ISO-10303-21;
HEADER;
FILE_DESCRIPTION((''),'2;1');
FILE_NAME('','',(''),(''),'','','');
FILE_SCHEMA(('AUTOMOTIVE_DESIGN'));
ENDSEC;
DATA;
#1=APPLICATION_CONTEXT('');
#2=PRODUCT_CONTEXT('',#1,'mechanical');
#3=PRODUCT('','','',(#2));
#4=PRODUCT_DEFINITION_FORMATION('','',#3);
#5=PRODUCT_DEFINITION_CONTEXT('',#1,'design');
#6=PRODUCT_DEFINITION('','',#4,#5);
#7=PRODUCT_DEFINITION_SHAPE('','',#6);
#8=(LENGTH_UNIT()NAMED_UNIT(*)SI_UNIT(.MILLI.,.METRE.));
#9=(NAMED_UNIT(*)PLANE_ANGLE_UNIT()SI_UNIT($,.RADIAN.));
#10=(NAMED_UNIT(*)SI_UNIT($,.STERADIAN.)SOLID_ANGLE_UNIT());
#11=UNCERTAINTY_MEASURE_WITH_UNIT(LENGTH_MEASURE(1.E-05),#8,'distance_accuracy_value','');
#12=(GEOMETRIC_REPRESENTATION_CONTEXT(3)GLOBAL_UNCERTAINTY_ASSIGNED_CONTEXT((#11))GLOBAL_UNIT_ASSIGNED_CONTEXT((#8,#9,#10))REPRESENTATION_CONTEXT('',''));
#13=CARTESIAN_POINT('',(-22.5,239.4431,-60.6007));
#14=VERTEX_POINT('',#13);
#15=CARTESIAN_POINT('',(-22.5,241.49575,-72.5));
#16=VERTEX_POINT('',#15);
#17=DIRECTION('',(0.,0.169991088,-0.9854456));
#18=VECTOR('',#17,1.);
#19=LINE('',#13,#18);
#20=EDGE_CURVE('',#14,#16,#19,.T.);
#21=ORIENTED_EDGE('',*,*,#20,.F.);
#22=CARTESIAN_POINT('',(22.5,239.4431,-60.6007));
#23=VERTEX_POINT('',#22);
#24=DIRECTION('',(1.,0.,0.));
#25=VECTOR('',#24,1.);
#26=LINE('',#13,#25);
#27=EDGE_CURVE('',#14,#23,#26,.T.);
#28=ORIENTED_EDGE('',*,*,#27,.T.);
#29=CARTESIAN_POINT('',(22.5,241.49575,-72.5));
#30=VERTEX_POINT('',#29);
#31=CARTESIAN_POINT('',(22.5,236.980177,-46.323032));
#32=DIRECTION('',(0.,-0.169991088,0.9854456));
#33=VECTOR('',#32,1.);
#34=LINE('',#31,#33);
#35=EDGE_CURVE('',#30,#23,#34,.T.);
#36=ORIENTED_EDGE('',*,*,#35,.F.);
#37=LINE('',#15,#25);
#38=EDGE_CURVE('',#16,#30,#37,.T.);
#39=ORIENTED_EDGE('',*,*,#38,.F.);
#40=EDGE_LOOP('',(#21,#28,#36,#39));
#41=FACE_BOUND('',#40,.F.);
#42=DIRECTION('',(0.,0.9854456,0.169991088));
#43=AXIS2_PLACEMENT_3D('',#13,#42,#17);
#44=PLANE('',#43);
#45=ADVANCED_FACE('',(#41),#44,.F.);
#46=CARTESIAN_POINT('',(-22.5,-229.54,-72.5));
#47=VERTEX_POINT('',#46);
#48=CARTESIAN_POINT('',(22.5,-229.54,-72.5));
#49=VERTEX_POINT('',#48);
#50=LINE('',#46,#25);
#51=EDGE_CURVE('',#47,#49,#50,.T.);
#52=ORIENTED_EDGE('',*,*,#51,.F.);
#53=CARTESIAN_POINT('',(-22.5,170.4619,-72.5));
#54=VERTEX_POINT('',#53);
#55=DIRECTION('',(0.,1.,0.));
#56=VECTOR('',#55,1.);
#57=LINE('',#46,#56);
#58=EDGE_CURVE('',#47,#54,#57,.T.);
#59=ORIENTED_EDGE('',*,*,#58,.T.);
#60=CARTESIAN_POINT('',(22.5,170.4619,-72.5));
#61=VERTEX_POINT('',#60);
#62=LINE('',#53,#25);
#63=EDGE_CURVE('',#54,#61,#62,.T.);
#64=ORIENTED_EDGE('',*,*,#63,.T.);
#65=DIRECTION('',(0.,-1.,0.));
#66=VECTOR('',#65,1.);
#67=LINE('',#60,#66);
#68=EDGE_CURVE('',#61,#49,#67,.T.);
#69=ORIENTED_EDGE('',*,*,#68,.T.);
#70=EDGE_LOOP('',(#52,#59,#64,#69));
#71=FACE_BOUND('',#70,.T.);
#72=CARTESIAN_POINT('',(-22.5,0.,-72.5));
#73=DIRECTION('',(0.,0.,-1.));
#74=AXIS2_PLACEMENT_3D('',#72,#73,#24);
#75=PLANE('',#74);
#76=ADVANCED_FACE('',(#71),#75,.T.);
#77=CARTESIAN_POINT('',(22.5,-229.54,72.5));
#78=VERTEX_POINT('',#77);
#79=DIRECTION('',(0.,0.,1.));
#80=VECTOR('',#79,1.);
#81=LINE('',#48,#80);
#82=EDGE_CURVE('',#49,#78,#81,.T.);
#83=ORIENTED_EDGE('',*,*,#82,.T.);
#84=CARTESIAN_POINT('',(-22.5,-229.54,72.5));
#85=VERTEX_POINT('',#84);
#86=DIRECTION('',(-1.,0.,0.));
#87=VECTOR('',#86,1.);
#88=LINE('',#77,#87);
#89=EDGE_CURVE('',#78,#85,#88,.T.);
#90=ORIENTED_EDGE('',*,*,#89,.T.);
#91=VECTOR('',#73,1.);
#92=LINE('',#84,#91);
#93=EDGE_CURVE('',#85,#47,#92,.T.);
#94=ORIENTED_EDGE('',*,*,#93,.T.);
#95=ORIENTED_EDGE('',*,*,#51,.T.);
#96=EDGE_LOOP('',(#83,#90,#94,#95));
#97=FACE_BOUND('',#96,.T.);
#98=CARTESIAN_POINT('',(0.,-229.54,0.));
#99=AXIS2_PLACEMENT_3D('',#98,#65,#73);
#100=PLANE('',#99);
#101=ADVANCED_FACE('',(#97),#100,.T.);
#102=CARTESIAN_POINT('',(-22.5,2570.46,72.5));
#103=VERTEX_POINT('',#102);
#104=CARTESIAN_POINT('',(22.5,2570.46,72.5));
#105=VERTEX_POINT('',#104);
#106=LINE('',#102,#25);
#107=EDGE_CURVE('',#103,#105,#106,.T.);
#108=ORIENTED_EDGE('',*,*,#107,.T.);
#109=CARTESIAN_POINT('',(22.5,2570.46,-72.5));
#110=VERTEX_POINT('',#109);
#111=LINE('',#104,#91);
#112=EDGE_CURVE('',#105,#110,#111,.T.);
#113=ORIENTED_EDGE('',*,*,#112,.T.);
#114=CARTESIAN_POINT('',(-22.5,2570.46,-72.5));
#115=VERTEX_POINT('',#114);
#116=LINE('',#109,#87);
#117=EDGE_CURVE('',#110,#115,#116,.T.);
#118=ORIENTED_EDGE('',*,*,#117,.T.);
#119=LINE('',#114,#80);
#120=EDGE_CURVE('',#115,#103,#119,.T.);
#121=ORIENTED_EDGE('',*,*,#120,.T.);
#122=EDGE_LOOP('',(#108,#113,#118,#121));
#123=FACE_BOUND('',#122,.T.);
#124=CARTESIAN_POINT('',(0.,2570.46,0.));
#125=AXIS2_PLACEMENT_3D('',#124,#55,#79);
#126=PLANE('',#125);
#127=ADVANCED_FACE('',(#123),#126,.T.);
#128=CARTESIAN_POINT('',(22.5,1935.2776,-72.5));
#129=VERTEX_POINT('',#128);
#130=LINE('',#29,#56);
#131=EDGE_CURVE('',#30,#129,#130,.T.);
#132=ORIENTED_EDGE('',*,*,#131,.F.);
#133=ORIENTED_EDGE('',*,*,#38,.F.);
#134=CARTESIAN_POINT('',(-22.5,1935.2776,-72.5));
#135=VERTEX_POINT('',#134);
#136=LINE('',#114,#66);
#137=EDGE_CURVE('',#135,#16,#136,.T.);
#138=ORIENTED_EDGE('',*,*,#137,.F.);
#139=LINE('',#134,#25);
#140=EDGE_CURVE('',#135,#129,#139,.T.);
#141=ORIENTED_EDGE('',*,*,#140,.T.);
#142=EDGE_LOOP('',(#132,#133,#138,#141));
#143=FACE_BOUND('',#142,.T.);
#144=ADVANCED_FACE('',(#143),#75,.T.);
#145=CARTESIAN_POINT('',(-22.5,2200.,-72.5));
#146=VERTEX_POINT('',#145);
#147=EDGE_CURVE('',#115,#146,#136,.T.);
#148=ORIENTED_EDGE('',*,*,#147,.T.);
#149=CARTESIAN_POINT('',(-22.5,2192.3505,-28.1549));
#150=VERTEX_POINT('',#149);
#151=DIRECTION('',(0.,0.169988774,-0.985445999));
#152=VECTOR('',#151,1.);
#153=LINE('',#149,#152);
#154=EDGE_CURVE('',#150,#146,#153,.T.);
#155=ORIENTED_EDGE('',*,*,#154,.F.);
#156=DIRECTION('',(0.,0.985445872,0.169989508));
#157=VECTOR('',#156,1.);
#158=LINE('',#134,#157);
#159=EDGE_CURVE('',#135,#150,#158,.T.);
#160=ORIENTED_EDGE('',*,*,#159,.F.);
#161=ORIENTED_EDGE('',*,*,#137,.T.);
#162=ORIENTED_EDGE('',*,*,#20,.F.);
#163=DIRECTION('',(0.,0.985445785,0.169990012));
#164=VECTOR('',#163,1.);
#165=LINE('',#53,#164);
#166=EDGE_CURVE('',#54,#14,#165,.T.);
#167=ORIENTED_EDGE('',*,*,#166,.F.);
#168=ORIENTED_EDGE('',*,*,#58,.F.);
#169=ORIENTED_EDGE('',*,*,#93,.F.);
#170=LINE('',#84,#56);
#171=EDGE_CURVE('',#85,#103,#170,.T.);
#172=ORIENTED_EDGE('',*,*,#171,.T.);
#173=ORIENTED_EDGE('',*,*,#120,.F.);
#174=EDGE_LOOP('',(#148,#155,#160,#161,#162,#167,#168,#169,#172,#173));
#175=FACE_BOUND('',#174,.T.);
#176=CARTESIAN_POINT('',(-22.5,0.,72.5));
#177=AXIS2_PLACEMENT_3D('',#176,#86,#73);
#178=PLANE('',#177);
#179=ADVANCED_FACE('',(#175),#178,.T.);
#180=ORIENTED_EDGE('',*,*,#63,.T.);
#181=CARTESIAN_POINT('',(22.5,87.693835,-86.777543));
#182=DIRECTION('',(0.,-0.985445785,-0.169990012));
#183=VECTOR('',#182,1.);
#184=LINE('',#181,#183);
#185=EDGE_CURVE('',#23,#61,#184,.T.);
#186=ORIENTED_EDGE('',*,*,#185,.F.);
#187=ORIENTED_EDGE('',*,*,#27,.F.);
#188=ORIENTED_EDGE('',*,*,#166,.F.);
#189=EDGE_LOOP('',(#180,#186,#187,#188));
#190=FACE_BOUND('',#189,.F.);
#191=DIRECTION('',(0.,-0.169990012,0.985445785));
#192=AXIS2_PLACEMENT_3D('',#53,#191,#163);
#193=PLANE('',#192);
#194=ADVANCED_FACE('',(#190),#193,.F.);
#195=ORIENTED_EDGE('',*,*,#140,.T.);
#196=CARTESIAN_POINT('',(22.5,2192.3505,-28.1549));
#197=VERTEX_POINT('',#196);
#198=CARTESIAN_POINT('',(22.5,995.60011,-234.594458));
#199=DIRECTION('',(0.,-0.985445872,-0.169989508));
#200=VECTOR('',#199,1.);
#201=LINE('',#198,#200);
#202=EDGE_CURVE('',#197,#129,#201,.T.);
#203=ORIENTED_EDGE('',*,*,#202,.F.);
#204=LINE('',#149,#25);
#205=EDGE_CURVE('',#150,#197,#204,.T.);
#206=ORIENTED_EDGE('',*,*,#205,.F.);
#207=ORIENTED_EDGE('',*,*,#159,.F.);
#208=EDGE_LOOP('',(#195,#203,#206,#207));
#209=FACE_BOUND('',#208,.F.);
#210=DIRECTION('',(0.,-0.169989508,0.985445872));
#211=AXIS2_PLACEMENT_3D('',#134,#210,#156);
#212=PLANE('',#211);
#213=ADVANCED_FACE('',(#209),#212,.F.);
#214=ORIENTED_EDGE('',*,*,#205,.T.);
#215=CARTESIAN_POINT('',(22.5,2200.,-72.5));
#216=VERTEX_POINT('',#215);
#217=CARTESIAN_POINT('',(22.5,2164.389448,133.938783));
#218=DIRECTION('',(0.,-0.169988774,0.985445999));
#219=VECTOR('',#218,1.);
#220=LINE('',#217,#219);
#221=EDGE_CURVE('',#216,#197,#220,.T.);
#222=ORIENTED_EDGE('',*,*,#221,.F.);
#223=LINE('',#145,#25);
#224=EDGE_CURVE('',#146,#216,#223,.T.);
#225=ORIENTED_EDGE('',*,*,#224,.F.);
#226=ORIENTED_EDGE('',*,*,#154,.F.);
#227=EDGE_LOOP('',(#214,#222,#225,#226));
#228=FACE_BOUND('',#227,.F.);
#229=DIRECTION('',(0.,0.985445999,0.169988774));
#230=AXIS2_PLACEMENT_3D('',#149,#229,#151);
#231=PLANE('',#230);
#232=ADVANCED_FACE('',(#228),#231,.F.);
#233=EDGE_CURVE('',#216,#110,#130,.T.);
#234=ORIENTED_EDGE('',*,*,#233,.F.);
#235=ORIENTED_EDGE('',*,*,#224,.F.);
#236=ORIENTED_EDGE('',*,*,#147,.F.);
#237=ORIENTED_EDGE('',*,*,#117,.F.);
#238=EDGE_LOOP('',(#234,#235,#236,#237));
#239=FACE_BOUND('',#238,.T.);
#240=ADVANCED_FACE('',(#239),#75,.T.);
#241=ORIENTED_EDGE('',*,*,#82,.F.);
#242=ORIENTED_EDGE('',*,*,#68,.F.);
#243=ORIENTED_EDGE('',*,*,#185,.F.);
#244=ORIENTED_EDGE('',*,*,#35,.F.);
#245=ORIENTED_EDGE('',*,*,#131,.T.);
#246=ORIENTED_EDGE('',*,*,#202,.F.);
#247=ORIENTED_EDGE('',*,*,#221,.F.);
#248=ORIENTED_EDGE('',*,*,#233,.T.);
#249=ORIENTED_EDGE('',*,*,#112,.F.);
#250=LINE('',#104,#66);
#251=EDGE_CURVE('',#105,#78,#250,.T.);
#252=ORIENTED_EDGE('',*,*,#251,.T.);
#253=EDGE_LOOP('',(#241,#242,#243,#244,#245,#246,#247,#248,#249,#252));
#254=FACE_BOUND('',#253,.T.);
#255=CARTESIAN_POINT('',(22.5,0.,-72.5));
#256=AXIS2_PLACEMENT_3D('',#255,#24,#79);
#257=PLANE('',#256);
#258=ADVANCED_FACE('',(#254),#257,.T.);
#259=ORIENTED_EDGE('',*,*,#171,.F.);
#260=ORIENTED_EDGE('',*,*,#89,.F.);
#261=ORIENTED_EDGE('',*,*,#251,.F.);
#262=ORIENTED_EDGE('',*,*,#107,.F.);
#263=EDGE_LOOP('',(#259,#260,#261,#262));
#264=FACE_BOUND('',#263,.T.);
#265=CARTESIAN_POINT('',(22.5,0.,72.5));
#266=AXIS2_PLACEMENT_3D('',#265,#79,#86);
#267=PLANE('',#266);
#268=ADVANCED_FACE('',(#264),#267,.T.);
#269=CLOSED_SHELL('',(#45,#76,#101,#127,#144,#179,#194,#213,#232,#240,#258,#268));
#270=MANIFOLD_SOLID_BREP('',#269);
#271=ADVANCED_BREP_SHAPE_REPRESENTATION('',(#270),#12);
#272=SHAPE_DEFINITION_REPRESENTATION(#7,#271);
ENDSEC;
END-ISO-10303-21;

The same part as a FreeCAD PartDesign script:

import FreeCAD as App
import Part
import Sketcher

V = App.Vector
Q = App.Units.Quantity

doc = App.newDocument("Part")
body = doc.addObject("PartDesign::Body", "Body")

# Sketch on XZ plane
sketch1 = body.newObject("Sketcher::SketchObject", "Sketch")
sketch1.AttachmentSupport = (doc.getObject("XZ_Plane"), [""])
sketch1.MapMode = "FlatFace"
sketch1.addGeometry(Part.LineSegment(V(-22, 72, 0), V(-22, -72, 0)), False)
sketch1.addGeometry(Part.LineSegment(V(-22, -72, 0), V(22, -72, 0)), False)
sketch1.addGeometry(Part.LineSegment(V(22, -72, 0), V(22, 72, 0)), False)
sketch1.addGeometry(Part.LineSegment(V(22, 72, 0), V(-22, 72, 0)), False)
sketch1.addConstraint(Sketcher.Constraint("Coincident", 0, 2, 1, 1))
sketch1.addConstraint(Sketcher.Constraint("Coincident", 1, 2, 2, 1))
sketch1.addConstraint(Sketcher.Constraint("Coincident", 2, 2, 3, 1))
sketch1.addConstraint(Sketcher.Constraint("Coincident", 3, 2, 0, 1))
sketch1.addConstraint(Sketcher.Constraint("Vertical", 0))
sketch1.addConstraint(Sketcher.Constraint("Horizontal", 1))
sketch1.addConstraint(Sketcher.Constraint("Vertical", 2))
sketch1.addConstraint(Sketcher.Constraint("Horizontal", 3))
sketch1.addConstraint(Sketcher.Constraint("Symmetric", 0, 2, 2, 2, -1, 1))
sketch1.addConstraint(Sketcher.Constraint("DistanceX", 1, 1, 1, 2, Q("45 mm")))
sketch1.addConstraint(Sketcher.Constraint("DistanceY", 0, 2, 0, 1, Q("145 mm")))
pad1 = body.newObject("PartDesign::Pad", "Pad")
pad1.Profile = sketch1
pad1.Length = 2200
pad1.Reversed = True

# Sketch on YZ plane
sketch2 = body.newObject("Sketcher::SketchObject", "Sketch001")
sketch2.AttachmentSupport = (doc.getObject("YZ_Plane"), [""])
sketch2.MapMode = "FlatFace"
sketch2.AttachmentOffset = App.Placement(V(0, 0, -22.5), App.Rotation())
sketch2.addGeometry(Part.LineSegment(V(174, -95, 0), V(170, -72, 0)), False)
sketch2.addGeometry(Part.LineSegment(V(170, -72, 0), V(239, -61, 0)), False)
sketch2.addGeometry(Part.LineSegment(V(239, -61, 0), V(243, -80, 0)), False)
sketch2.addGeometry(Part.LineSegment(V(243, -80, 0), V(174, -95, 0)), False)
sketch2.addConstraint(Sketcher.Constraint("Coincident", 0, 2, 1, 1))
sketch2.addConstraint(Sketcher.Constraint("Coincident", 1, 2, 2, 1))
sketch2.addConstraint(Sketcher.Constraint("Coincident", 2, 2, 3, 1))
sketch2.addConstraint(Sketcher.Constraint("Coincident", 3, 2, 0, 1))
sketch2.addConstraint(Sketcher.Constraint("Perpendicular", 0, 1))
sketch2.addConstraint(Sketcher.Constraint("Perpendicular", 1, 2))
sketch2.addConstraint(Sketcher.Constraint("Distance", 1, Q("70 mm")))
sketch2.addConstraint(Sketcher.Constraint("Distance", 0, Q("22.5 mm")))
sketch2.addConstraint(Sketcher.Constraint("DistanceY", 0, 2, -1, 1, Q("72.5 mm")))
sketch2.addConstraint(Sketcher.Constraint("Angle", 3, Q("-168.0793 deg")))
sketch2.addConstraint(Sketcher.Constraint("DistanceX", -1, 1, 0, 2, Q("170.462 mm")))
sketch2.addConstraint(Sketcher.Constraint("DistanceX", -1, 1, 1, 2, Q("239.443 mm")))
pocket1 = body.newObject("PartDesign::Pocket", "Pocket")
pocket1.Profile = sketch2
pocket1.Length = 199.504
pocket1.Reversed = True

# Sketch on XZ plane
sketch3 = body.newObject("Sketcher::SketchObject", "Sketch002")
sketch3.AttachmentSupport = (doc.getObject("XZ_Plane"), [""])
sketch3.MapMode = "FlatFace"
sketch3.addGeometry(Part.LineSegment(V(-22, 72, 0), V(-22, -72, 0)), False)
sketch3.addGeometry(Part.LineSegment(V(-22, -72, 0), V(22, -72, 0)), False)
sketch3.addGeometry(Part.LineSegment(V(22, -72, 0), V(22, 72, 0)), False)
sketch3.addGeometry(Part.LineSegment(V(22, 72, 0), V(-22, 72, 0)), False)
sketch3.addConstraint(Sketcher.Constraint("Coincident", 0, 2, 1, 1))
sketch3.addConstraint(Sketcher.Constraint("Coincident", 1, 2, 2, 1))
sketch3.addConstraint(Sketcher.Constraint("Coincident", 2, 2, 3, 1))
sketch3.addConstraint(Sketcher.Constraint("Coincident", 3, 2, 0, 1))
sketch3.addConstraint(Sketcher.Constraint("Vertical", 0))
sketch3.addConstraint(Sketcher.Constraint("Horizontal", 1))
sketch3.addConstraint(Sketcher.Constraint("Vertical", 2))
sketch3.addConstraint(Sketcher.Constraint("Horizontal", 3))
sketch3.addConstraint(Sketcher.Constraint("Symmetric", 0, 2, 2, 2, -1, 1))
sketch3.addConstraint(Sketcher.Constraint("DistanceX", 1, 1, 1, 2, Q("45 mm")))
sketch3.addConstraint(Sketcher.Constraint("DistanceY", 0, 2, 0, 1, Q("145 mm")))
pad2 = body.newObject("PartDesign::Pad", "Pad001")
pad2.Profile = sketch3
pad2.Length = 229.54

# Sketch on XZ plane
sketch4 = body.newObject("Sketcher::SketchObject", "Sketch003")
sketch4.AttachmentSupport = (doc.getObject("XZ_Plane"), [""])
sketch4.MapMode = "FlatFace"
sketch4.AttachmentOffset = App.Placement(V(0, 0, -2200), App.Rotation())
sketch4.addGeometry(Part.LineSegment(V(22, 72, 0), V(22, -72, 0)), False)
sketch4.addGeometry(Part.LineSegment(V(22, -72, 0), V(-22, -72, 0)), False)
sketch4.addGeometry(Part.LineSegment(V(-22, -72, 0), V(-22, 72, 0)), False)
sketch4.addGeometry(Part.LineSegment(V(-22, 72, 0), V(22, 72, 0)), False)
sketch4.addConstraint(Sketcher.Constraint("Coincident", 0, 2, 1, 1))
sketch4.addConstraint(Sketcher.Constraint("Coincident", 1, 2, 2, 1))
sketch4.addConstraint(Sketcher.Constraint("Coincident", 2, 2, 3, 1))
sketch4.addConstraint(Sketcher.Constraint("Coincident", 3, 2, 0, 1))
sketch4.addConstraint(Sketcher.Constraint("Vertical", 0))
sketch4.addConstraint(Sketcher.Constraint("Horizontal", 1))
sketch4.addConstraint(Sketcher.Constraint("Vertical", 2))
sketch4.addConstraint(Sketcher.Constraint("Horizontal", 3))
sketch4.addConstraint(Sketcher.Constraint("Symmetric", 0, 2, 2, 2, -1, 1))
sketch4.addConstraint(Sketcher.Constraint("DistanceX", 1, 2, 1, 1, Q("45 mm")))
sketch4.addConstraint(Sketcher.Constraint("DistanceY", 0, 2, 0, 1, Q("145 mm")))
pad3 = body.newObject("PartDesign::Pad", "Pad002")
pad3.Profile = sketch4
pad3.Length = 370.46
pad3.Reversed = True

# Sketch on YZ plane
sketch5 = body.newObject("Sketcher::SketchObject", "Sketch004")
sketch5.AttachmentSupport = (doc.getObject("YZ_Plane"), [""])
sketch5.MapMode = "FlatFace"
sketch5.AttachmentOffset = App.Placement(V(0, 0, -22.5), App.Rotation())
sketch5.addGeometry(Part.LineSegment(V(2192, -28, 0), V(2200, -72, 0)), False)
sketch5.addGeometry(Part.LineSegment(V(2200, -72, 0), V(1935, -72, 0)), False)
sketch5.addGeometry(Part.LineSegment(V(1935, -72, 0), V(2192, -28, 0)), False)
sketch5.addConstraint(Sketcher.Constraint("Coincident", 0, 2, 1, 1))
sketch5.addConstraint(Sketcher.Constraint("Coincident", 1, 2, 2, 1))
sketch5.addConstraint(Sketcher.Constraint("Coincident", 2, 2, 0, 1))
sketch5.addConstraint(Sketcher.Constraint("Horizontal", 1))
sketch5.addConstraint(Sketcher.Constraint("Perpendicular", 0, 2))
sketch5.addConstraint(Sketcher.Constraint("Distance", 0, Q("45 mm")))
sketch5.addConstraint(Sketcher.Constraint("DistanceX", -1, 1, 0, 2, Q("2200 mm")))
sketch5.addConstraint(Sketcher.Constraint("DistanceY", 0, 2, -1, 1, Q("72.5 mm")))
sketch5.addConstraint(Sketcher.Constraint("DistanceX", 1, 2, 1, 1, Q("264.7224 mm")))
pocket2 = body.newObject("PartDesign::Pocket", "Pocket001")
pocket2.Profile = sketch5
pocket2.Length = 98.6618
pocket2.Reversed = True

doc.recompute()
